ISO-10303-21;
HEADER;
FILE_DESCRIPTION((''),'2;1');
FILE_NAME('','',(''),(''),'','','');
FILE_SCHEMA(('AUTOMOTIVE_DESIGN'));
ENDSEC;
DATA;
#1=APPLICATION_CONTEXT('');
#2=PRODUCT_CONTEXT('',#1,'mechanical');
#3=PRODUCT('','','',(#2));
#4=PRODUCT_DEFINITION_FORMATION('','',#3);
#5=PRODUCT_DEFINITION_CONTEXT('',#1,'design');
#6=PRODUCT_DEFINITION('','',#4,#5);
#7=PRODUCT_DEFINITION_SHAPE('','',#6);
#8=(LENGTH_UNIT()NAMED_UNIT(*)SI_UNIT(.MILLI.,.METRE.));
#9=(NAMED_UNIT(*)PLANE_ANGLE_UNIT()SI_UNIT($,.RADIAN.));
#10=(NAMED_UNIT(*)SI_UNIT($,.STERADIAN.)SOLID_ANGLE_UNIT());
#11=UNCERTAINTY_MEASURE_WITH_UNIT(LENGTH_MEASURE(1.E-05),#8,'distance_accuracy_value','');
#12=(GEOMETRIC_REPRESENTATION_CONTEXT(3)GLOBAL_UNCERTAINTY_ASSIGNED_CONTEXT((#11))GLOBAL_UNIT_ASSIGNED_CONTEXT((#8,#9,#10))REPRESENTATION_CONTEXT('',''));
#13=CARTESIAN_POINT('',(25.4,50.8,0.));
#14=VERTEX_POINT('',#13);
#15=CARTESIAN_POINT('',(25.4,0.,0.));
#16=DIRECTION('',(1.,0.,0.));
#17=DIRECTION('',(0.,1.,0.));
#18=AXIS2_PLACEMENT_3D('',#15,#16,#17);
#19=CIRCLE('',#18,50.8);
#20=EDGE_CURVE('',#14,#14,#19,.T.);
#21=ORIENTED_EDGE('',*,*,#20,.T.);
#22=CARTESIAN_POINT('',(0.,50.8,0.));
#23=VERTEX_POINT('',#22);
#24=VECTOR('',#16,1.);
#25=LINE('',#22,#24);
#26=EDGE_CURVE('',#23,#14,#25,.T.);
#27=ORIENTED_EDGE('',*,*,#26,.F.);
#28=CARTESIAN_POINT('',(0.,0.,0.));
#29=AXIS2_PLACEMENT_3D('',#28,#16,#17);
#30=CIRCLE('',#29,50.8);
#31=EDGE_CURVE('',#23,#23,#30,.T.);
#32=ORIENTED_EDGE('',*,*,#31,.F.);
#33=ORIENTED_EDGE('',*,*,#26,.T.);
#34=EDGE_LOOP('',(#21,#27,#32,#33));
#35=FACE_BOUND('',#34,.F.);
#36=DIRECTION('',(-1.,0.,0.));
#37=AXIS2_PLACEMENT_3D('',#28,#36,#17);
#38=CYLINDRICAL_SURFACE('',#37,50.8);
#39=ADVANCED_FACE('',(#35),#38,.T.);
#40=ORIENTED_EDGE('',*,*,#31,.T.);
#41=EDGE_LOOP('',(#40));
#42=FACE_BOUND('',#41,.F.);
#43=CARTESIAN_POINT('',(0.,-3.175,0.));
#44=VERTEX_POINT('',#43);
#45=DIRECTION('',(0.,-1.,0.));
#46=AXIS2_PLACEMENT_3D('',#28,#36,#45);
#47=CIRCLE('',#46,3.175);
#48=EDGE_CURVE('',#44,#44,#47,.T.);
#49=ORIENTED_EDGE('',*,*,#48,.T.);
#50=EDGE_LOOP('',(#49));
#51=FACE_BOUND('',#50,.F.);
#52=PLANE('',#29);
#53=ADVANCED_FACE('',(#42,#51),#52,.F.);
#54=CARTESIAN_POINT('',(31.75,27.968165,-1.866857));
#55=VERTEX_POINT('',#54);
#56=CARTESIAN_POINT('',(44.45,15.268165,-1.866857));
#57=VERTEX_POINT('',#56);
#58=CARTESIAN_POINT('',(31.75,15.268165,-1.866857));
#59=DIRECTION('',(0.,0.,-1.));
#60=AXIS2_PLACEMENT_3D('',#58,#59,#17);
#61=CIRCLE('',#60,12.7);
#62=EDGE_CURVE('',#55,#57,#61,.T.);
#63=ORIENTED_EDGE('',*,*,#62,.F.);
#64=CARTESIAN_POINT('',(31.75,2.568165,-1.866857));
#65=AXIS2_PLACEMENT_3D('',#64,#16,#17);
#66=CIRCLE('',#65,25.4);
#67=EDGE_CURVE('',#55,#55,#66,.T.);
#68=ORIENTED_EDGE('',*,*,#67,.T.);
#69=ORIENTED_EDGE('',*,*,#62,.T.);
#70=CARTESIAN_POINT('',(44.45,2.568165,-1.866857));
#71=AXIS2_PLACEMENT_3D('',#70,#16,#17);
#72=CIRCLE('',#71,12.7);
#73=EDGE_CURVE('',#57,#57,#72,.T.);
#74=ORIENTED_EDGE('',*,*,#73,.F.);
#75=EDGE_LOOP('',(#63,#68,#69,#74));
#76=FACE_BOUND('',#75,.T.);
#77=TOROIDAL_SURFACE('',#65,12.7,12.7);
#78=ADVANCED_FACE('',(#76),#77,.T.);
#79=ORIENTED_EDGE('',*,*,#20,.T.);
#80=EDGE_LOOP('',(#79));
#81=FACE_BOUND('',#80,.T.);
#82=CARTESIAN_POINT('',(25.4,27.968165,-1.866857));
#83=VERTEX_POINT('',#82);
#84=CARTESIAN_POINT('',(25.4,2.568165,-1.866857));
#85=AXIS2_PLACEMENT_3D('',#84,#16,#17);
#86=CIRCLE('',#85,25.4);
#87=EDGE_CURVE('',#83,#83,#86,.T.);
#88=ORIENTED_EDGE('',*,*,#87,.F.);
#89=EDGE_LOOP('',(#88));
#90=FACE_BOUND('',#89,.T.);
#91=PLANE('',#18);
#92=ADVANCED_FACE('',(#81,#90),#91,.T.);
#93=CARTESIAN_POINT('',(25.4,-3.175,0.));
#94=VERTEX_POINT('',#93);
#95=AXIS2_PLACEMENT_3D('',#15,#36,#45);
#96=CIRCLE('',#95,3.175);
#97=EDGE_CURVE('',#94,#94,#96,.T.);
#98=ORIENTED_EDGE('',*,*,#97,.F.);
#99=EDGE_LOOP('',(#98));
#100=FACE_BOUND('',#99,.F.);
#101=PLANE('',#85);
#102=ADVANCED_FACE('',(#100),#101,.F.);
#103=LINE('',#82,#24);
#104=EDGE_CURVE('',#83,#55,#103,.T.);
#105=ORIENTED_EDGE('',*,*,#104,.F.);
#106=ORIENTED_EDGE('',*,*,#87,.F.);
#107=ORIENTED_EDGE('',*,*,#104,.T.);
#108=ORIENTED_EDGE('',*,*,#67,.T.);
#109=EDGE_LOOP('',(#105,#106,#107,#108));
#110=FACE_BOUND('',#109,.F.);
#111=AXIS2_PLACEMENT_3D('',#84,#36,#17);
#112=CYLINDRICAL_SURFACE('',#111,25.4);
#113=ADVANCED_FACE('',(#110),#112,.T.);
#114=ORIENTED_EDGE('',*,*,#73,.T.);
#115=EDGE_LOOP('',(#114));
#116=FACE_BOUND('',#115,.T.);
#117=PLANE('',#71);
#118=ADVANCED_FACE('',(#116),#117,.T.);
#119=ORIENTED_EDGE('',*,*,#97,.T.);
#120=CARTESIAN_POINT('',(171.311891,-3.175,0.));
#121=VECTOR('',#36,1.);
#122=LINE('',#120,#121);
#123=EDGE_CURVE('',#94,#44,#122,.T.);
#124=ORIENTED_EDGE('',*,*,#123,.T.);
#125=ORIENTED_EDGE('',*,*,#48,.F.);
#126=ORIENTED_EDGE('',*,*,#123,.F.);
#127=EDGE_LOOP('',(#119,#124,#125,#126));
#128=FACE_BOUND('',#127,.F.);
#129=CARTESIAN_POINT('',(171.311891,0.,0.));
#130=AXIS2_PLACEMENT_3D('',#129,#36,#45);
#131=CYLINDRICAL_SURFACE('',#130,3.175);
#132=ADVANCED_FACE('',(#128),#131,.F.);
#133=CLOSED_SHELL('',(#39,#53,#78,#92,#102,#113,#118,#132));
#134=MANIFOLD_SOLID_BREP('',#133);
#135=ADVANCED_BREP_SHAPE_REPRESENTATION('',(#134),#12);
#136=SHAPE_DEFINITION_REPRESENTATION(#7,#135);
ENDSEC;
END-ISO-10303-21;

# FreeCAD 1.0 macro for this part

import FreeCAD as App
import Part
import Sketcher
Q = App.Units.Quantity


def edges_at(feature, points):
    """Names of the edges that pass closest to the given points."""
    edges = feature.Shape.Edges
    near = lambda p: min(range(len(edges)), key=lambda i: edges[i].distToShape(Part.Vertex(*p))[0])
    return sorted({f"Edge{near(p) + 1}" for p in points})

doc = App.newDocument("Part")
body = doc.addObject("PartDesign::Body", "Body")

sketch1 = body.newObject("Sketcher::SketchObject", "Sketch")
sketch1.AttachmentSupport = (doc.getObject("YZ_Plane"), [""])
sketch1.MapMode = "FlatFace"
sketch1.addGeometry(Part.Circle(App.Vector(0, 0, 0), App.Vector(0, 0, 1), 50.8), False)
sketch1.addConstraint([
    Sketcher.Constraint("Coincident", 0, 3, -1, 1),
    Sketcher.Constraint("Diameter", 0, Q("4 in")),
])
pad1 = body.newObject("PartDesign::Pad", "Pad")
pad1.Profile = sketch1
pad1.Length = Q("1 in")

sketch2 = body.newObject("Sketcher::SketchObject", "Sketch001")
sketch2.AttachmentSupport = (doc.getObject("YZ_Plane"), [""])
sketch2.MapMode = "FlatFace"
sketch2.AttachmentOffset = App.Placement(App.Vector(0, 0, 1 * 25.4), App.Rotation())
sketch2.addGeometry(Part.Circle(App.Vector(0, 0, 0), App.Vector(0, 0, 1), 3.175), False)
sketch2.addConstraint([
    Sketcher.Constraint("Coincident", 0, 3, -1, 1),
    Sketcher.Constraint("Diameter", 0, Q("0.25 in")),
])
doc.recompute()
hole = body.newObject("PartDesign::Hole", "Hole")
hole.Profile = sketch2
hole.ThreadType = "None"
hole.Diameter = Q("0.25 in")
hole.DepthType = "ThroughAll"

sketch3 = body.newObject("Sketcher::SketchObject", "Sketch002")
sketch3.AttachmentSupport = (doc.getObject("YZ_Plane"), [""])
sketch3.MapMode = "FlatFace"
sketch3.AttachmentOffset = App.Placement(App.Vector(0, 0, 1 * 25.4), App.Rotation())
sketch3.addGeometry(Part.Circle(App.Vector(2.568165, -1.866857, 0), App.Vector(0, 0, 1), 25.4), False)
sketch3.addConstraint([
    Sketcher.Constraint("Diameter", 0, Q("2 in")),
    Sketcher.Constraint("DistanceX", -1, 1, 0, 3, 2.568165),
    Sketcher.Constraint("DistanceY", 0, 3, -1, 1, 1.866857),
])
pad2 = body.newObject("PartDesign::Pad", "Pad001")
pad2.Profile = sketch3
pad2.Length = Q("0.75 in")
doc.recompute()

fillet = body.newObject("PartDesign::Fillet", "Fillet")
fillet.Base = (pad2, edges_at(pad2, [(44.45, -22.832, -1.867)]))
fillet.Radius = Q("0.5 in")

doc.recompute()
